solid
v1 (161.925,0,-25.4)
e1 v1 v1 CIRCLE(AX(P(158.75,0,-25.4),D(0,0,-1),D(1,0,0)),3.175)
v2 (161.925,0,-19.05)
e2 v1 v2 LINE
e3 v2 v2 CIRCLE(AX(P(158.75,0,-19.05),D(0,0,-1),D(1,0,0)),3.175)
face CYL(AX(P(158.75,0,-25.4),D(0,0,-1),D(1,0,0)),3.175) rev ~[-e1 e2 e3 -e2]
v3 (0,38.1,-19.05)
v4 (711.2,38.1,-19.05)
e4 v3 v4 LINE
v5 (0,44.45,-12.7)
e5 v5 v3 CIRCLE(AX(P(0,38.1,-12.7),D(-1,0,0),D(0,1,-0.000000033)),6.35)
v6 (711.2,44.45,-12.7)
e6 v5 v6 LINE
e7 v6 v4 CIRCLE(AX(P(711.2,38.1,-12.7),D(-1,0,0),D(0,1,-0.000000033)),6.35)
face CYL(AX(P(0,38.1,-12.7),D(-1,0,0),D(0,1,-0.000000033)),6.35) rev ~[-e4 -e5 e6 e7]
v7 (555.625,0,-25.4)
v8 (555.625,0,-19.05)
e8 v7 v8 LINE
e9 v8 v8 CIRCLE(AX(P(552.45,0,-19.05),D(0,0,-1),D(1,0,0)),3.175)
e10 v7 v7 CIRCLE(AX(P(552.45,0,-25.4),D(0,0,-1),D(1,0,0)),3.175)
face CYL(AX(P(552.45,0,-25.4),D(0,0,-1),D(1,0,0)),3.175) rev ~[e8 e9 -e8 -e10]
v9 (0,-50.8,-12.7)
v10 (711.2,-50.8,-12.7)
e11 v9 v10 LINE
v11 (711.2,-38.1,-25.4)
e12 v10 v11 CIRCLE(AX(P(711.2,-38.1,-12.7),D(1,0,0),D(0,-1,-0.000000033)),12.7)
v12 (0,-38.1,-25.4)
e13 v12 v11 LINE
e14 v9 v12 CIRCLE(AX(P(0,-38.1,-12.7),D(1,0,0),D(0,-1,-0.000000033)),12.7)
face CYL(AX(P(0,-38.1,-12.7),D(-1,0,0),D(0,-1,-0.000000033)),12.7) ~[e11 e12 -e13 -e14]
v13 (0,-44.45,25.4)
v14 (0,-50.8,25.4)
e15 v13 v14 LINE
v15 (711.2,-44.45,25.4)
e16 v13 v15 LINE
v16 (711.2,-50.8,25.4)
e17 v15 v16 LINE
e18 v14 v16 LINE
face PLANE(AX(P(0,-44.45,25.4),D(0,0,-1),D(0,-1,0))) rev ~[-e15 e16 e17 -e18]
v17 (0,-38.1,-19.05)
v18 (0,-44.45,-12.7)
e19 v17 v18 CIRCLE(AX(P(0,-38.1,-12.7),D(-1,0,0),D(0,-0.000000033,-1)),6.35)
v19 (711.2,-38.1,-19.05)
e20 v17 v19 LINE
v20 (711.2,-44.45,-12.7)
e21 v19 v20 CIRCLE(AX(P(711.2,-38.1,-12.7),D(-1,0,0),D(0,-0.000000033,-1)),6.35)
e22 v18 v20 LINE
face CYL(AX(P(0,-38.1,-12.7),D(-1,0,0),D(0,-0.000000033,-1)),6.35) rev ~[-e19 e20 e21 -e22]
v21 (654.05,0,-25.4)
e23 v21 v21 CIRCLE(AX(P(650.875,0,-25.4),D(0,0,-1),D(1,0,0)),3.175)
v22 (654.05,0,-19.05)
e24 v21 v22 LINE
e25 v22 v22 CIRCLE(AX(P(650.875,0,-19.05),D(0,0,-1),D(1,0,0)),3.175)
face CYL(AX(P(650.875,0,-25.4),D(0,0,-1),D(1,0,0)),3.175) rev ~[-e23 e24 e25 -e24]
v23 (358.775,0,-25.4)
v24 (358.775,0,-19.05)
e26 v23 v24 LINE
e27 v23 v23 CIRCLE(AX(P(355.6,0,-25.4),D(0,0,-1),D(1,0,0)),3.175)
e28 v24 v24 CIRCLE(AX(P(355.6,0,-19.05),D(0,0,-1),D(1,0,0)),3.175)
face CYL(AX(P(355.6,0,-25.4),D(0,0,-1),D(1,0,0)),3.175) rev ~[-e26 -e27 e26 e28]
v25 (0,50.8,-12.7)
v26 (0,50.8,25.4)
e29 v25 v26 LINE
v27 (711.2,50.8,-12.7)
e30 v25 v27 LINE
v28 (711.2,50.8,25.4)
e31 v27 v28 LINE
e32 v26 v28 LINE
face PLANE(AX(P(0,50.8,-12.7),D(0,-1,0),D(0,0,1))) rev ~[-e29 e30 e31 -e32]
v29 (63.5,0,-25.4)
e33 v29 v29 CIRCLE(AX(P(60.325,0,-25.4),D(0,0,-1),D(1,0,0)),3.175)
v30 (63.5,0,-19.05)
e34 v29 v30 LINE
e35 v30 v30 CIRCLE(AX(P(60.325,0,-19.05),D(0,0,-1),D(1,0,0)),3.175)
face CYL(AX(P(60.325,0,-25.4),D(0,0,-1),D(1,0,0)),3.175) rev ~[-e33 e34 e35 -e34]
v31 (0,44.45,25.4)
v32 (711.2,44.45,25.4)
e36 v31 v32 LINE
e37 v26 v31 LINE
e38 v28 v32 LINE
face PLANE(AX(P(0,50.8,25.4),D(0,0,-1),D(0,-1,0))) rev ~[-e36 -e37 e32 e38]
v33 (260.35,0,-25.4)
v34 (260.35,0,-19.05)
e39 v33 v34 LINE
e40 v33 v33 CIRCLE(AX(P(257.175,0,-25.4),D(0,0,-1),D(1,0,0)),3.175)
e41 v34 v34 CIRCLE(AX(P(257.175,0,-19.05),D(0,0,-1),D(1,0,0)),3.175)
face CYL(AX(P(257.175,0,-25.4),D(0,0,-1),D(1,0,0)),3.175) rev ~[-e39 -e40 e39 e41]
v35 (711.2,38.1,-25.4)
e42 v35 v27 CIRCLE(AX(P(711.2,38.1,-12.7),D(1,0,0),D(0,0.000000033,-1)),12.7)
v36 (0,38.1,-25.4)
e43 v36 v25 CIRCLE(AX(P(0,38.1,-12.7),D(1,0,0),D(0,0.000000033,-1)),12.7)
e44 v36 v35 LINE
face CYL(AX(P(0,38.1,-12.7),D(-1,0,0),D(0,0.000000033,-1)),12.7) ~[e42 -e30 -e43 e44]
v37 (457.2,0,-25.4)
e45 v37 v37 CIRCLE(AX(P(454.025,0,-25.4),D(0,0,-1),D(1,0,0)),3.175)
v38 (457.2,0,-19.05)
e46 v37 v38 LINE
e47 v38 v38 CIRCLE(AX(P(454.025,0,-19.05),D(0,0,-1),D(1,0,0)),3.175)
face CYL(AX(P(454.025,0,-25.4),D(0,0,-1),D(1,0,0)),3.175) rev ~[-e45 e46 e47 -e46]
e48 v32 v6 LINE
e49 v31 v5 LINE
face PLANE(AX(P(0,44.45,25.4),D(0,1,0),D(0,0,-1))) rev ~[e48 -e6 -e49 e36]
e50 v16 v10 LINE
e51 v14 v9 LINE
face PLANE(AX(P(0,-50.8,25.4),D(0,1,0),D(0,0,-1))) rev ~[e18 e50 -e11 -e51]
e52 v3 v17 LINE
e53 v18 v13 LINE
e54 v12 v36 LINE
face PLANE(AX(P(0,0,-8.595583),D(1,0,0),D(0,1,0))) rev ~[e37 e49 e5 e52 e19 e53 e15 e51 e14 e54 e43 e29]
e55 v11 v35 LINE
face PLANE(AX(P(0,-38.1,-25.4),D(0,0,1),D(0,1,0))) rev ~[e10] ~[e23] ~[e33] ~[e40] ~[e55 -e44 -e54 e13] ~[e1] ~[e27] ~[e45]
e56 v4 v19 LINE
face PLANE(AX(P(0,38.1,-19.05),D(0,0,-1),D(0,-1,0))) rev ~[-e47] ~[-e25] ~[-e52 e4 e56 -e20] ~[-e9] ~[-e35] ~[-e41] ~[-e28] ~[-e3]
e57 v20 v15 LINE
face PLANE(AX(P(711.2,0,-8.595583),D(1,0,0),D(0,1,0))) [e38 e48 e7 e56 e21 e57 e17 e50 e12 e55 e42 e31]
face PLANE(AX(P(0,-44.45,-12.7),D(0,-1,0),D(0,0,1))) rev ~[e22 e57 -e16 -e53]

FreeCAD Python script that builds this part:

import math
import FreeCAD as App
import Part
import Sketcher

V = App.Vector
Q = App.Units.Quantity

doc = App.newDocument("Part")
body = doc.addObject("PartDesign::Body", "Body")

sketch1 = body.newObject("Sketcher::SketchObject", "Sketch")
sketch1.AttachmentSupport = (doc.getObject("YZ_Plane"), [""])
sketch1.MapMode = "FlatFace"
sketch1.addGeometry(Part.LineSegment(V(-38.1, -25.4, 0), V(38.1, -25.4, 0)), False)
sketch1.addGeometry(Part.ArcOfCircle(Part.Circle(V(38.1, -12.7, 0), V(0, 0, 1), 12.7), math.radians(-89.999998), math.radians(-0.000002)), False)
sketch1.addGeometry(Part.LineSegment(V(50.8, -12.7, 0), V(50.8, 25.4, 0)), False)
sketch1.addGeometry(Part.LineSegment(V(50.8, 25.4, 0), V(44.45, 25.4, 0)), False)
sketch1.addGeometry(Part.LineSegment(V(44.45, 25.4, 0), V(44.45, -12.7, 0)), False)
sketch1.addGeometry(Part.ArcOfCircle(Part.Circle(V(38.1, -12.7, 0), V(0, 0, 1), 6.35), math.radians(-89.999998), math.radians(-0.000002)), False)
sketch1.addGeometry(Part.LineSegment(V(38.1, -19.05, 0), V(-38.1, -19.05, 0)), False)
sketch1.addGeometry(Part.ArcOfCircle(Part.Circle(V(-38.1, -12.7, 0), V(0, 0, 1), 6.35), math.radians(-179.999998), math.radians(-90.000002)), False)
sketch1.addGeometry(Part.LineSegment(V(-44.45, -12.7, 0), V(-44.45, 25.4, 0)), False)
sketch1.addGeometry(Part.LineSegment(V(-44.45, 25.4, 0), V(-50.8, 25.4, 0)), False)
sketch1.addGeometry(Part.LineSegment(V(-50.8, 25.4, 0), V(-50.8, -12.7, 0)), False)
sketch1.addGeometry(Part.ArcOfCircle(Part.Circle(V(-38.1, -12.7, 0), V(0, 0, 1), 12.7), math.radians(-179.999998), math.radians(-90.000002)), False)
sketch1.addConstraint(Sketcher.Constraint("Tangent", 0, 2, 1, 1))
sketch1.addConstraint(Sketcher.Constraint("Tangent", 1, 2, 2, 1))
sketch1.addConstraint(Sketcher.Constraint("Coincident", 2, 2, 3, 1))
sketch1.addConstraint(Sketcher.Constraint("Coincident", 3, 2, 4, 1))
sketch1.addConstraint(Sketcher.Constraint("Tangent", 4, 2, 5, 2))
sketch1.addConstraint(Sketcher.Constraint("Tangent", 5, 1, 6, 1))
sketch1.addConstraint(Sketcher.Constraint("Tangent", 6, 2, 7, 2))
sketch1.addConstraint(Sketcher.Constraint("Tangent", 7, 1, 8, 1))
sketch1.addConstraint(Sketcher.Constraint("Coincident", 8, 2, 9, 1))
sketch1.addConstraint(Sketcher.Constraint("Coincident", 9, 2, 10, 1))
sketch1.addConstraint(Sketcher.Constraint("Tangent", 10, 2, 11, 1))
sketch1.addConstraint(Sketcher.Constraint("Tangent", 11, 2, 0, 1))
sketch1.addConstraint(Sketcher.Constraint("Horizontal", 0))
sketch1.addConstraint(Sketcher.Constraint("Vertical", 2))
sketch1.addConstraint(Sketcher.Constraint("Horizontal", 3))
sketch1.addConstraint(Sketcher.Constraint("Vertical", 4))
sketch1.addConstraint(Sketcher.Constraint("Horizontal", 6))
sketch1.addConstraint(Sketcher.Constraint("Vertical", 8))
sketch1.addConstraint(Sketcher.Constraint("Horizontal", 9))
sketch1.addConstraint(Sketcher.Constraint("Vertical", 10))
sketch1.addConstraint(Sketcher.Constraint("Coincident", 5, 3, 1, 3))
sketch1.addConstraint(Sketcher.Constraint("Coincident", 11, 3, 7, 3))
sketch1.addConstraint(Sketcher.Constraint("Equal", 5, 7))
sketch1.addConstraint(Sketcher.Constraint("Symmetric", 3, 2, 8, 2, -2))
sketch1.addConstraint(Sketcher.Constraint("Radius", 1, Q("0.5 in")))
sketch1.addConstraint(Sketcher.Constraint("DistanceX", 0, 1, 0, 2, Q("3 in")))
sketch1.addConstraint(Sketcher.Constraint("Radius", 5, Q("0.25 in")))
sketch1.addConstraint(Sketcher.Constraint("DistanceY", 2, 1, 2, 2, Q("1.5 in")))
sketch1.addConstraint(Sketcher.Constraint("DistanceY", 0, 2, -1, 1, Q("1 in")))
pad1 = body.newObject("PartDesign::Pad", "Pad")
pad1.Profile = sketch1
pad1.Length = Q("28 in")

sketch2 = body.newObject("Sketcher::SketchObject", "Sketch001")
sketch2.AttachmentSupport = (doc.getObject("XY_Plane"), [""])
sketch2.MapMode = "FlatFace"
sketch2.AttachmentOffset = App.Placement(V(0, 0, -1 * 25.4), App.Rotation())
sketch2.addGeometry(Part.Circle(V(355.6, 0, 0), V(0, 0, 1), 3.175), False)
sketch2.addGeometry(Part.Circle(V(454.025, 0, 0), V(0, 0, 1), 3.175), False)
sketch2.addGeometry(Part.Circle(V(552.45, 0, 0), V(0, 0, 1), 3.175), False)
sketch2.addGeometry(Part.Circle(V(650.875, 0, 0), V(0, 0, 1), 3.175), False)
sketch2.addGeometry(Part.Circle(V(257.175, 0, 0), V(0, 0, 1), 3.175), False)
sketch2.addGeometry(Part.Circle(V(158.75, 0, 0), V(0, 0, 1), 3.175), False)
sketch2.addGeometry(Part.Circle(V(60.325, 0, 0), V(0, 0, 1), 3.175), False)
sketch2.addConstraint(Sketcher.Constraint("Equal", 0, 1))
sketch2.addConstraint(Sketcher.Constraint("Equal", 1, 2))
sketch2.addConstraint(Sketcher.Constraint("Equal", 2, 3))
sketch2.addConstraint(Sketcher.Constraint("Equal", 3, 4))
sketch2.addConstraint(Sketcher.Constraint("Equal", 4, 5))
sketch2.addConstraint(Sketcher.Constraint("Equal", 5, 6))
sketch2.addConstraint(Sketcher.Constraint("PointOnObject", 0, 3, -1))
sketch2.addConstraint(Sketcher.Constraint("PointOnObject", 1, 3, -1))
sketch2.addConstraint(Sketcher.Constraint("PointOnObject", 2, 3, -1))
sketch2.addConstraint(Sketcher.Constraint("PointOnObject", 3, 3, -1))
sketch2.addConstraint(Sketcher.Constraint("PointOnObject", 4, 3, -1))
sketch2.addConstraint(Sketcher.Constraint("PointOnObject", 5, 3, -1))
sketch2.addConstraint(Sketcher.Constraint("PointOnObject", 6, 3, -1))
sketch2.addConstraint(Sketcher.Constraint("Diameter", 0, Q("0.25 in")))
sketch2.addConstraint(Sketcher.Constraint("DistanceX", -1, 1, 0, 3, Q("14 in")))
sketch2.addConstraint(Sketcher.Constraint("DistanceX", 4, 3, 3, 3, Q("15.5 in")))
sketch2.addConstraint(Sketcher.Constraint("DistanceX", 5, 3, 2, 3, Q("15.5 in")))
sketch2.addConstraint(Sketcher.Constraint("DistanceX", 6, 3, 1, 3, Q("15.5 in")))
sketch2.addConstraint(Sketcher.Constraint("DistanceX", -1, 1, 2, 3, Q("21.75 in")))
sketch2.addConstraint(Sketcher.Constraint("DistanceX", 1, 3, 3, 3, Q("7.75 in")))
sketch2.addConstraint(Sketcher.Constraint("DistanceX", -1, 1, 1, 3, Q("17.875 in")))
pocket1 = body.newObject("PartDesign::Pocket", "Pocket")
pocket1.Profile = sketch2
pocket1.Length = Q("1 in")
pocket1.Reversed = True

doc.recompute()
